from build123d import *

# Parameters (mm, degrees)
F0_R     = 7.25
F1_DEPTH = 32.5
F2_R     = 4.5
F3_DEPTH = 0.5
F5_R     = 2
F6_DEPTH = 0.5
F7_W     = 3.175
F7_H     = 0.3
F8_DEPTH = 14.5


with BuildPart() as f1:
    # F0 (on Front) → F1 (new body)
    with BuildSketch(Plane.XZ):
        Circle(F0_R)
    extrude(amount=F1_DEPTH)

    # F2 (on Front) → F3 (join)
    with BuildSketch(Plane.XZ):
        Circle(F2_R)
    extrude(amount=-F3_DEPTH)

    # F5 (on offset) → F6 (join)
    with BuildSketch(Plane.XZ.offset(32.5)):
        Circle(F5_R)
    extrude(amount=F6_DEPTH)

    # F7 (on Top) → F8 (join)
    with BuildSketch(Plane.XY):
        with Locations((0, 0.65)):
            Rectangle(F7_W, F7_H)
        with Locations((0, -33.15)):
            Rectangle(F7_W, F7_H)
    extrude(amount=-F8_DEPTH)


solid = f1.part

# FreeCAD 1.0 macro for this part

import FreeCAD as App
import Part
import Sketcher
from FreeCAD import Vector

doc = App.newDocument("Part")
body = doc.addObject("PartDesign::Body", "Body")

sketch1 = body.newObject("Sketcher::SketchObject", "Sketch")
sketch1.AttachmentSupport = (doc.getObject("XZ_Plane"), [""])
sketch1.MapMode = "FlatFace"
sketch1.addGeometry(Part.Circle(Vector(0, 0, 0), Vector(0, 0, 1), 7), False)
sketch1.addConstraint([
    Sketcher.Constraint("Coincident", 0, 3, -1, 1),
    Sketcher.Constraint("Diameter", 0, 14.5),
])
pad1 = body.newObject("PartDesign::Pad", "Pad")
pad1.Profile = sketch1
pad1.Length = 32.5

sketch2 = body.newObject("Sketcher::SketchObject", "Sketch001")
sketch2.AttachmentSupport = (doc.getObject("XZ_Plane"), [""])
sketch2.MapMode = "FlatFace"
sketch2.addGeometry(Part.Circle(Vector(0, 0, 0), Vector(0, 0, 1), 4.5), False)
sketch2.addConstraint([
    Sketcher.Constraint("Coincident", 0, 3, -1, 1),
    Sketcher.Constraint("Diameter", 0, 9.0),
])
pad2 = body.newObject("PartDesign::Pad", "Pad001")
pad2.Profile = sketch2
pad2.Length = 0.5
pad2.Reversed = True

sketch3 = body.newObject("Sketcher::SketchObject", "Sketch002")
sketch3.AttachmentSupport = (doc.getObject("XZ_Plane"), [""])
sketch3.MapMode = "FlatFace"
sketch3.AttachmentOffset = App.Placement(Vector(0, 0, 32.5), App.Rotation())
sketch3.addGeometry(Part.Circle(Vector(0, 0, 0), Vector(0, 0, 1), 2), False)
sketch3.addConstraint([
    Sketcher.Constraint("Coincident", 0, 3, -1, 1),
    Sketcher.Constraint("Diameter", 0, 4.0),
])
pad3 = body.newObject("PartDesign::Pad", "Pad002")
pad3.Profile = sketch3
pad3.Length = 0.5

sketch4 = body.newObject("Sketcher::SketchObject", "Sketch003")
sketch4.AttachmentSupport = (doc.getObject("XY_Plane"), [""])
sketch4.MapMode = "FlatFace"
sketch4.addGeometry([
    Part.LineSegment(Vector(-1.59, 0.8, 0), Vector(-1.59, 0.5, 0)),
    Part.LineSegment(Vector(-1.59, 0.5, 0), Vector(1.59, 0.5, 0)),
    Part.LineSegment(Vector(1.59, 0.5, 0), Vector(1.59, 0.8, 0)),
    Part.LineSegment(Vector(1.59, 0.8, 0), Vector(-1.59, 0.8, 0)),
    Part.LineSegment(Vector(-1.59, -33, 0), Vector(-1.59, -33.3, 0)),
    Part.LineSegment(Vector(-1.59, -33.3, 0), Vector(1.59, -33.3, 0)),
    Part.LineSegment(Vector(1.59, -33.3, 0), Vector(1.59, -33, 0)),
    Part.LineSegment(Vector(1.59, -33, 0), Vector(-1.59, -33, 0)),
], False)
sketch4.addConstraint([
    Sketcher.Constraint("Coincident", 0, 2, 1, 1),
    Sketcher.Constraint("Coincident", 1, 2, 2, 1),
    Sketcher.Constraint("Coincident", 2, 2, 3, 1),
    Sketcher.Constraint("Coincident", 3, 2, 0, 1),
    Sketcher.Constraint("Coincident", 4, 2, 5, 1),
    Sketcher.Constraint("Coincident", 5, 2, 6, 1),
    Sketcher.Constraint("Coincident", 6, 2, 7, 1),
    Sketcher.Constraint("Coincident", 7, 2, 4, 1),
    Sketcher.Constraint("Vertical", 0),
    Sketcher.Constraint("Horizontal", 1),
    Sketcher.Constraint("Vertical", 2),
    Sketcher.Constraint("Horizontal", 3),
    Sketcher.Constraint("Vertical", 4),
    Sketcher.Constraint("Horizontal", 5),
    Sketcher.Constraint("Vertical", 6),
    Sketcher.Constraint("Horizontal", 7),
    Sketcher.Constraint("Vertical", 3, 2, 4, 2),
    Sketcher.Constraint("Vertical", 2, 2, 5, 2),
    Sketcher.Constraint("Equal", 2, 4),
    Sketcher.Constraint("DistanceY", 0, 2, 0, 1, 0.3),
    Sketcher.Constraint("DistanceY", 6, 2, -1, 1, 33.0),
    Sketcher.Constraint("DistanceY", -1, 1, 0, 2, 0.5),
    Sketcher.Constraint("DistanceX", 1, 1, 1, 2, 3.175),
    Sketcher.Constraint("DistanceX", 0, 2, -1, 1, 1.5875),
])
pad4 = body.newObject("PartDesign::Pad", "Pad003")
pad4.Profile = sketch4
pad4.Length = 14.5
pad4.Reversed = True

doc.recompute()
